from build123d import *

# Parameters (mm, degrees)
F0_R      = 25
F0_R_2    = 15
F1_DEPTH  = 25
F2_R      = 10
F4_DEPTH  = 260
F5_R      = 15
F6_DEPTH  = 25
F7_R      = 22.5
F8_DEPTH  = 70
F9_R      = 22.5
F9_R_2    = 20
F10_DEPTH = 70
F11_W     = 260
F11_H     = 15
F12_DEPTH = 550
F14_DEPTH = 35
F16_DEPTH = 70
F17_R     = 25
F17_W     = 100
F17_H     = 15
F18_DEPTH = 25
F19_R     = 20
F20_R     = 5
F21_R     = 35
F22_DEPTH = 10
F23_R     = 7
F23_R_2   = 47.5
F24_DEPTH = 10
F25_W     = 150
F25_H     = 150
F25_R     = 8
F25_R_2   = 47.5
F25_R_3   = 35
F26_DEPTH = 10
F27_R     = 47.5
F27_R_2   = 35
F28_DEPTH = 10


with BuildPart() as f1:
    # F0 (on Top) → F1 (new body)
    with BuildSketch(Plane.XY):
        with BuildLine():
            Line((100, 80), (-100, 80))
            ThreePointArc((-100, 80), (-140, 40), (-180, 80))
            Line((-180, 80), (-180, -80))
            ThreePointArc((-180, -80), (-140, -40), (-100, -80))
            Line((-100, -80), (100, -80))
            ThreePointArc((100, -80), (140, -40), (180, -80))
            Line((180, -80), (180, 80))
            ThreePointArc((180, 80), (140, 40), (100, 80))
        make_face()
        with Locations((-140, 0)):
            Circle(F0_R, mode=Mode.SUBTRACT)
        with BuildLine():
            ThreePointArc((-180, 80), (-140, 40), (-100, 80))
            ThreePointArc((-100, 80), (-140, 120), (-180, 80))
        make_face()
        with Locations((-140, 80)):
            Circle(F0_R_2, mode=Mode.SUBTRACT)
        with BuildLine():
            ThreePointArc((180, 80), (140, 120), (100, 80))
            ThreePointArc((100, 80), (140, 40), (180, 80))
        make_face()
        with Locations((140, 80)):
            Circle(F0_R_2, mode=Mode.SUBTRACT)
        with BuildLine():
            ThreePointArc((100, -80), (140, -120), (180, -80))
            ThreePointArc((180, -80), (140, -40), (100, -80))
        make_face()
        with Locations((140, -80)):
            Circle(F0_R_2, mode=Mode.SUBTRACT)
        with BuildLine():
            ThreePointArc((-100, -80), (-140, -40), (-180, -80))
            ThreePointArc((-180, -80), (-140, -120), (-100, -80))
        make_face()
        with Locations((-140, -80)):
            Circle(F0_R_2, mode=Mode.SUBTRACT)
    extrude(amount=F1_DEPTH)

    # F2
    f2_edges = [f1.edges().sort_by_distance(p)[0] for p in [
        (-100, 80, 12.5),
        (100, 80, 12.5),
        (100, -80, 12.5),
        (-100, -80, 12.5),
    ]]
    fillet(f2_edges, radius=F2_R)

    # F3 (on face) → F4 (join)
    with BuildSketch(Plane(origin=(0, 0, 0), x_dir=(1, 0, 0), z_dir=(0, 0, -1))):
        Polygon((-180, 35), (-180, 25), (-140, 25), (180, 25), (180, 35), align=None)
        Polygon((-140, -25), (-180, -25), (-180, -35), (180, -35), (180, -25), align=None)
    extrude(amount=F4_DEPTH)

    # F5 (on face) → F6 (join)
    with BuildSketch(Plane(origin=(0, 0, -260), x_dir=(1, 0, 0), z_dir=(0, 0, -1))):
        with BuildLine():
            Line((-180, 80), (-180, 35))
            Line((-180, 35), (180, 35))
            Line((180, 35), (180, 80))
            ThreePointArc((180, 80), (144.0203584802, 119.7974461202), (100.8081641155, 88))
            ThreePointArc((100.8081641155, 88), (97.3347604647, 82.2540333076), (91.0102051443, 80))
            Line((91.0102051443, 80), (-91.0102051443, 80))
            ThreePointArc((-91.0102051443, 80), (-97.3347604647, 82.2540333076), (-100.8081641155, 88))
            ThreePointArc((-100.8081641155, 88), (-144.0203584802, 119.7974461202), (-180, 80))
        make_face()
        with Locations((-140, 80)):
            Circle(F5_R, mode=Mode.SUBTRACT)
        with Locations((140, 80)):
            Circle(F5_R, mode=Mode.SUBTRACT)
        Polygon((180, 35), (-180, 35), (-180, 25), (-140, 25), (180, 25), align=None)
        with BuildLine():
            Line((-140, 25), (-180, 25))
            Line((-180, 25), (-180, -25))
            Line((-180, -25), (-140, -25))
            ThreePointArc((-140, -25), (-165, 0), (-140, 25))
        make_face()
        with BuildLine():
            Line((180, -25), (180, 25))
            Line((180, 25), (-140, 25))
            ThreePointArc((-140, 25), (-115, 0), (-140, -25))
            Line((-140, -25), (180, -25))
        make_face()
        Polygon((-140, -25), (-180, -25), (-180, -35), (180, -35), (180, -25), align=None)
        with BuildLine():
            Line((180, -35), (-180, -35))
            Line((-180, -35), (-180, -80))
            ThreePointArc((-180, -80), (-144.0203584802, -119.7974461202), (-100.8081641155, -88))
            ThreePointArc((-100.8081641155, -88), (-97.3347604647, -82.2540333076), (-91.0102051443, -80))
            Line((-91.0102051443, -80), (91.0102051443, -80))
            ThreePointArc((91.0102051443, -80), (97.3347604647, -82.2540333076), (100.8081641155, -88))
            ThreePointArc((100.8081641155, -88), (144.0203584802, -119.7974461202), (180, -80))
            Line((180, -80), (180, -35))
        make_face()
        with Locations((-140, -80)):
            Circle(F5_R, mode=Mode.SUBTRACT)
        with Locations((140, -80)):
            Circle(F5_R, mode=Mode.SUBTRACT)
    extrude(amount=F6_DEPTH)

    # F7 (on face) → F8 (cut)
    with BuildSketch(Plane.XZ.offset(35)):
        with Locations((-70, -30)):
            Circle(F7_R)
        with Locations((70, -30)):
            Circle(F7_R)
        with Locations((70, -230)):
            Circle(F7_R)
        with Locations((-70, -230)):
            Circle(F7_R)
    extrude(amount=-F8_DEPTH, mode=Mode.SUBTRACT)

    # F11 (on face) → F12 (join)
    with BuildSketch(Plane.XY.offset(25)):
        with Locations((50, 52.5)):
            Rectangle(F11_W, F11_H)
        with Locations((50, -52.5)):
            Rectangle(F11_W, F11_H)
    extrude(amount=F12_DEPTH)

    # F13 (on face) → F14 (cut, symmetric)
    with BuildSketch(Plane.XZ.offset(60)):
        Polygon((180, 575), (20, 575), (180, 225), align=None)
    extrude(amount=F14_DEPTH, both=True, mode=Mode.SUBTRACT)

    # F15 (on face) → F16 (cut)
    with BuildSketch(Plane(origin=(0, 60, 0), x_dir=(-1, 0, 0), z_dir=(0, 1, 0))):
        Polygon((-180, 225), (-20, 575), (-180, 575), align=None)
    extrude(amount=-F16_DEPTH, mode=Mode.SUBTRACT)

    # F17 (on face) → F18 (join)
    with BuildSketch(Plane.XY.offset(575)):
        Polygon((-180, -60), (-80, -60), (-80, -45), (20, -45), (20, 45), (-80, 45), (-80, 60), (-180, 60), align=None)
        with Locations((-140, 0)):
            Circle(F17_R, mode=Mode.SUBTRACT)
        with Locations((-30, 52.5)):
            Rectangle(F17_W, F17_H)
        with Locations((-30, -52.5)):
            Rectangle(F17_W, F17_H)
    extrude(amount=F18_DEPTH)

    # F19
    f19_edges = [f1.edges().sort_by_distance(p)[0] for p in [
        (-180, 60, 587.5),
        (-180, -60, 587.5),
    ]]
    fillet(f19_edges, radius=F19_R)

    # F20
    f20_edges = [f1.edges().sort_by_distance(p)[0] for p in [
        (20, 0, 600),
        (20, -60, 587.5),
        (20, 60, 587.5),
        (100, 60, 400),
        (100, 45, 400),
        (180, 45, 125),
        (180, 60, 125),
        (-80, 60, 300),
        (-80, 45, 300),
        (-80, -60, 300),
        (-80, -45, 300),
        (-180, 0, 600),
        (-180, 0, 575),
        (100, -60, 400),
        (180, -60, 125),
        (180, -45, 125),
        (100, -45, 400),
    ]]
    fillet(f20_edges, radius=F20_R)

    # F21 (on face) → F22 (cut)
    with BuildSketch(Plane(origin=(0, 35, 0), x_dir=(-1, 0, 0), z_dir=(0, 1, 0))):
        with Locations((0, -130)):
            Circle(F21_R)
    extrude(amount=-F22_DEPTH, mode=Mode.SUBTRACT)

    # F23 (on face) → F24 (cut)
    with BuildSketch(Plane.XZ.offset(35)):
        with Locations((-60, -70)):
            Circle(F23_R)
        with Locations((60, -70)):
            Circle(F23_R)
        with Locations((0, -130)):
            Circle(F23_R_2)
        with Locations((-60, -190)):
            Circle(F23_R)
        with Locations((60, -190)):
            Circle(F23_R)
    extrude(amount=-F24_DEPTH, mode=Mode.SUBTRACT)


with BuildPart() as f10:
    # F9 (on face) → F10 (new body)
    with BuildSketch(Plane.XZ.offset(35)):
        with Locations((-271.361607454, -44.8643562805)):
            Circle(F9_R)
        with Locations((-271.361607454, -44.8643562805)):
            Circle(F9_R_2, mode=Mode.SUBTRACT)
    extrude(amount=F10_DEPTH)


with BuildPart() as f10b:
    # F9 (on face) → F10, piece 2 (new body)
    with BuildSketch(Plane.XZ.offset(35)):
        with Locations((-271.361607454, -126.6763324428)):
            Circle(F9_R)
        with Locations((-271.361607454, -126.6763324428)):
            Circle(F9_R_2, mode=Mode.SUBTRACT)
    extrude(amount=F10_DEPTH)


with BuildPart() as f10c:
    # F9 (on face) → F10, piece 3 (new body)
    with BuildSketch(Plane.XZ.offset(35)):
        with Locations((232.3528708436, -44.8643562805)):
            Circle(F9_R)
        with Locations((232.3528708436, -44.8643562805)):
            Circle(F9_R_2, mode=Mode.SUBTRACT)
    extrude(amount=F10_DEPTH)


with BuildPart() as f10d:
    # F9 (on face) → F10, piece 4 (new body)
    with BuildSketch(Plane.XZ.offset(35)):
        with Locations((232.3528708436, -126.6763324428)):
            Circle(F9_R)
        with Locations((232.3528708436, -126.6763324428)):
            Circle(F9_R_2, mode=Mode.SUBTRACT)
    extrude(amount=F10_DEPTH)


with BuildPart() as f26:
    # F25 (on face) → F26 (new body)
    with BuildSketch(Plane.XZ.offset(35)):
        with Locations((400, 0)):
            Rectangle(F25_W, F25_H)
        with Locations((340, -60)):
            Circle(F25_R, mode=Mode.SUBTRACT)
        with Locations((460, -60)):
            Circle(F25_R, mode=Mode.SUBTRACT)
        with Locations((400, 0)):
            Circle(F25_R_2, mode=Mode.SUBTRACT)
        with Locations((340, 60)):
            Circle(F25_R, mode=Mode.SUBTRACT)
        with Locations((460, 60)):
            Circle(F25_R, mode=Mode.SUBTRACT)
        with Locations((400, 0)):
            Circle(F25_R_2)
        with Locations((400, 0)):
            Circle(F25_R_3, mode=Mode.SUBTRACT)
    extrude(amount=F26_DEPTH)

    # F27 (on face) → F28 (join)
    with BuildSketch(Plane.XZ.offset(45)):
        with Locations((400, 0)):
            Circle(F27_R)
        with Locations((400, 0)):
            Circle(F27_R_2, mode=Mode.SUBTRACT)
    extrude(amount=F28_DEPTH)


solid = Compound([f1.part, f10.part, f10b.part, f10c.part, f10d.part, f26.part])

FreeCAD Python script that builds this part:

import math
import FreeCAD as App
import Part
import Sketcher

V = App.Vector
Q = App.Units.Quantity


def edges_at(feature, points):
    """Names of the edges that pass closest to the given points."""
    edges = feature.Shape.Edges
    near = lambda p: min(range(len(edges)), key=lambda i: edges[i].distToShape(Part.Vertex(*p))[0])
    return sorted({f"Edge{near(p) + 1}" for p in points})


def add_polygon(sketch, points):
    """Adds a closed chain of lines whose ends are joined by coincident constraints."""
    first, n = sketch.GeometryCount, len(points)
    for a, b in zip(points, points[1:] + points[:1]):
        sketch.addGeometry(Part.LineSegment(App.Vector(*a, 0), App.Vector(*b, 0)), False)
    for i in range(n):
        sketch.addConstraint(Sketcher.Constraint("Coincident", first + i, 2, first + (i + 1) % n, 1))

doc = App.newDocument("Part")
body = doc.addObject("PartDesign::Body", "Body")

# Sketch on XY plane
sketch1 = body.newObject("Sketcher::SketchObject", "Sketch")
sketch1.AttachmentSupport = (doc.getObject("XY_Plane"), [""])
sketch1.MapMode = "FlatFace"
sketch1.addGeometry([
    Part.LineSegment(V(100, 80, 0), V(-100, 80, 0)),  # 0
    Part.ArcOfCircle(Part.Circle(V(-140, 80, 0), V(0, 0, 1), 40), math.radians(0), math.radians(180)),  # 1
    Part.LineSegment(V(-180, 80, 0), V(-180, -80, 0)),  # 2
    Part.ArcOfCircle(Part.Circle(V(-140, -80, 0), V(0, 0, 1), 40), math.radians(180), math.radians(360)),  # 3
    Part.LineSegment(V(-100, -80, 0), V(100, -80, 0)),  # 4
    Part.ArcOfCircle(Part.Circle(V(140, -80, 0), V(0, 0, 1), 40), math.radians(180), math.radians(360)),  # 5
    Part.LineSegment(V(180, -80, 0), V(180, 80, 0)),  # 6
    Part.ArcOfCircle(Part.Circle(V(140, 80, 0), V(0, 0, 1), 40), math.radians(0), math.radians(180)),  # 7
    Part.Circle(V(-140, -80, 0), V(0, 0, 1), 15),  # 8
    Part.Circle(V(140, -80, 0), V(0, 0, 1), 15),  # 9
    Part.Circle(V(-140, 0, 0), V(0, 0, 1), 25),  # 10
    Part.Circle(V(-140, 80, 0), V(0, 0, 1), 15),  # 11
    Part.Circle(V(140, 80, 0), V(0, 0, 1), 15),  # 12
], False)
sketch1.addConstraint([
    Sketcher.Constraint("Coincident", 0, 2, 1, 1),
    Sketcher.Constraint("Tangent", 1, 2, 2, 1),
    Sketcher.Constraint("Tangent", 2, 2, 3, 1),
    Sketcher.Constraint("Coincident", 3, 2, 4, 1),
    Sketcher.Constraint("Coincident", 4, 2, 5, 1),
    Sketcher.Constraint("Tangent", 5, 2, 6, 1),
    Sketcher.Constraint("Tangent", 6, 2, 7, 1),
    Sketcher.Constraint("Coincident", 7, 2, 0, 1),
    Sketcher.Constraint("Horizontal", 0),
    Sketcher.Constraint("Vertical", 2),
    Sketcher.Constraint("Horizontal", 4),
    Sketcher.Constraint("Vertical", 6),
    Sketcher.Constraint("Coincident", 8, 3, 3, 3),
    Sketcher.Constraint("Coincident", 9, 3, 5, 3),
    Sketcher.Constraint("Coincident", 11, 3, 1, 3),
    Sketcher.Constraint("Coincident", 12, 3, 7, 3),
    Sketcher.Constraint("Equal", 1, 3),
    Sketcher.Constraint("Equal", 3, 5),
    Sketcher.Constraint("Equal", 5, 7),
    Sketcher.Constraint("Equal", 8, 9),
    Sketcher.Constraint("Equal", 9, 11),
    Sketcher.Constraint("Equal", 11, 12),
    Sketcher.Constraint("Symmetric", 1, 3, 5, 3, -1, 1),
    Sketcher.Constraint("PointOnObject", 10, 3, -1),
    Sketcher.Constraint("Horizontal", 3, 3, 5, 3),
    Sketcher.Constraint("Horizontal", 1, 3, 7, 3),
    Sketcher.Constraint("Horizontal", 12, 3, 0, 2),
    Sketcher.Constraint("Horizontal", 2, 2, 3, 2),
    Sketcher.Constraint("Vertical", 8, 3, 10, 3),
    Sketcher.Constraint("Diameter", 8, Q("30 mm")),
    Sketcher.Constraint("Diameter", 10, Q("50 mm")),
    Sketcher.Constraint("Radius", 1, Q("40 mm")),
    Sketcher.Constraint("DistanceX", 0, 2, 0, 1, Q("200 mm")),
    Sketcher.Constraint("DistanceY", 2, 2, 2, 1, Q("160 mm")),
])
pad1 = body.newObject("PartDesign::Pad", "Pad")
pad1.Profile = sketch1
pad1.Length = 25
doc.recompute()

fillet = body.newObject("PartDesign::Fillet", "Fillet")
fillet.Base = (pad1, edges_at(pad1, [
    (-100, 80, 12.5),
    (100, 80, 12.5),
    (100, -80, 12.5),
    (-100, -80, 12.5),
]))
fillet.Radius = 10

# Sketch on XY plane
sketch2 = body.newObject("Sketcher::SketchObject", "Sketch001")
sketch2.AttachmentSupport = (doc.getObject("XY_Plane"), [""])
sketch2.MapMode = "FlatFace"
add_polygon(sketch2, [(-180, -35), (-180, -25), (180, -25), (180, -35)])  # lines 0-3
add_polygon(sketch2, [(-180, 25), (-180, 35), (180, 35), (180, 25)])  # lines 4-7
sketch2.addConstraint([
    Sketcher.Constraint("Vertical", 0),
    Sketcher.Constraint("Horizontal", 1),
    Sketcher.Constraint("Vertical", 2),
    Sketcher.Constraint("Horizontal", 3),
    Sketcher.Constraint("Vertical", 4),
    Sketcher.Constraint("Horizontal", 5),
    Sketcher.Constraint("Vertical", 6),
    Sketcher.Constraint("Horizontal", 7),
    Sketcher.Constraint("Symmetric", 2, 2, 4, 2, -1, 1),
    Sketcher.Constraint("Symmetric", 0, 2, 6, 2, -1, 1),
    Sketcher.Constraint("Vertical", 3, 2, 4, 2),
    Sketcher.Constraint("DistanceX", 1, 1, 1, 2, Q("360 mm")),
    Sketcher.Constraint("DistanceY", 0, 1, 0, 2, Q("10 mm")),
    Sketcher.Constraint("DistanceY", 0, 2, -1, 1, Q("25 mm")),
])
pad2 = body.newObject("PartDesign::Pad", "Pad001")
pad2.Profile = sketch2
pad2.Length = 260
pad2.Reversed = True

# Sketch on XY plane
sketch3 = body.newObject("Sketcher::SketchObject", "Sketch002")
sketch3.AttachmentSupport = (doc.getObject("XY_Plane"), [""])
sketch3.MapMode = "FlatFace"
sketch3.AttachmentOffset = App.Placement(V(0, 0, -260), App.Rotation())
sketch3.addGeometry([
    Part.LineSegment(V(-180, -80, 0), V(-180, 80, 0)),  # 0
    Part.ArcOfCircle(Part.Circle(V(-140, 80, 0), V(0, 0, 1), 40), math.radians(12), math.radians(180)),  # 1
    Part.ArcOfCircle(Part.Circle(V(-91, 90, 0), V(0, 0, 1), 10), math.radians(-168), math.radians(-90)),  # 2
    Part.LineSegment(V(-91, 80, 0), V(91, 80, 0)),  # 3
    Part.ArcOfCircle(Part.Circle(V(91, 90, 0), V(0, 0, 1), 10), math.radians(-90), math.radians(-12)),  # 4
    Part.ArcOfCircle(Part.Circle(V(140, 80, 0), V(0, 0, 1), 40), math.radians(0), math.radians(168)),  # 5
    Part.LineSegment(V(180, 80, 0), V(180, -80, 0)),  # 6
    Part.ArcOfCircle(Part.Circle(V(140, -80, 0), V(0, 0, 1), 40), math.radians(-168), math.radians(0)),  # 7
    Part.ArcOfCircle(Part.Circle(V(91, -90, 0), V(0, 0, 1), 10), math.radians(12), math.radians(90)),  # 8
    Part.LineSegment(V(91, -80, 0), V(-91, -80, 0)),  # 9
    Part.ArcOfCircle(Part.Circle(V(-91, -90, 0), V(0, 0, 1), 10), math.radians(90), math.radians(168)),  # 10
    Part.ArcOfCircle(Part.Circle(V(-140, -80, 0), V(0, 0, 1), 40), math.radians(180), math.radians(348)),  # 11
    Part.Circle(V(-140, 80, 0), V(0, 0, 1), 15),  # 12
    Part.Circle(V(140, 80, 0), V(0, 0, 1), 15),  # 13
    Part.Circle(V(-140, 0, 0), V(0, 0, 1), 25),  # 14
    Part.Circle(V(-140, -80, 0), V(0, 0, 1), 15),  # 15
    Part.Circle(V(140, -80, 0), V(0, 0, 1), 15),  # 16
], False)
sketch3.addConstraint([
    Sketcher.Constraint("Tangent", 0, 2, 1, 2),
    Sketcher.Constraint("Tangent", 1, 1, 2, 1),
    Sketcher.Constraint("Tangent", 2, 2, 3, 1),
    Sketcher.Constraint("Tangent", 3, 2, 4, 1),
    Sketcher.Constraint("Tangent", 4, 2, 5, 2),
    Sketcher.Constraint("Tangent", 5, 1, 6, 1),
    Sketcher.Constraint("Tangent", 6, 2, 7, 2),
    Sketcher.Constraint("Tangent", 7, 1, 8, 1),
    Sketcher.Constraint("Tangent", 8, 2, 9, 1),
    Sketcher.Constraint("Tangent", 9, 2, 10, 1),
    Sketcher.Constraint("Tangent", 10, 2, 11, 2),
    Sketcher.Constraint("Tangent", 11, 1, 0, 1),
    Sketcher.Constraint("Vertical", 0),
    Sketcher.Constraint("Horizontal", 3),
    Sketcher.Constraint("Vertical", 6),
    Sketcher.Constraint("Horizontal", 9),
    Sketcher.Constraint("Coincident", 12, 3, 1, 3),
    Sketcher.Constraint("Coincident", 13, 3, 5, 3),
    Sketcher.Constraint("Coincident", 15, 3, 11, 3),
    Sketcher.Constraint("Coincident", 16, 3, 7, 3),
    Sketcher.Constraint("Equal", 2, 4),
    Sketcher.Constraint("Equal", 1, 5),
    Sketcher.Constraint("Equal", 5, 7),
    Sketcher.Constraint("Equal", 4, 8),
    Sketcher.Constraint("Equal", 8, 10),
    Sketcher.Constraint("Equal", 7, 11),
    Sketcher.Constraint("Equal", 12, 13),
    Sketcher.Constraint("Equal", 13, 15),
    Sketcher.Constraint("Equal", 15, 16),
    Sketcher.Constraint("Symmetric", 1, 3, 7, 3, -1, 1),
    Sketcher.Constraint("Symmetric", 4, 3, 10, 3, -1, 1),
    Sketcher.Constraint("PointOnObject", 14, 3, -1),
    Sketcher.Constraint("Horizontal", 1, 3, 5, 3),
    Sketcher.Constraint("Horizontal", 0, 2, 2, 2),
    Sketcher.Constraint("Vertical", 12, 3, 14, 3),
    Sketcher.Constraint("Diameter", 12, Q("30 mm")),
    Sketcher.Constraint("Diameter", 14, Q("50 mm")),
    Sketcher.Constraint("Radius", 1, Q("40 mm")),
    Sketcher.Constraint("Radius", 2, Q("10 mm")),
    Sketcher.Constraint("DistanceY", 0, 1, 0, 2, Q("160 mm")),
    Sketcher.Constraint("DistanceX", 1, 3, -1, 1, Q("140 mm")),
])
pad3 = body.newObject("PartDesign::Pad", "Pad002")
pad3.Profile = sketch3
pad3.Length = 25
pad3.Reversed = True

# Sketch on XZ plane
sketch4 = body.newObject("Sketcher::SketchObject", "Sketch003")
sketch4.AttachmentSupport = (doc.getObject("XZ_Plane"), [""])
sketch4.MapMode = "FlatFace"
sketch4.AttachmentOffset = App.Placement(V(0, 0, 35), App.Rotation())
sketch4.addGeometry([
    Part.Circle(V(-70, -30, 0), V(0, 0, 1), 22),
    Part.Circle(V(70, -30, 0), V(0, 0, 1), 22),
    Part.Circle(V(70, -230, 0), V(0, 0, 1), 22),
    Part.Circle(V(-70, -230, 0), V(0, 0, 1), 22),
], False)
sketch4.addConstraint([
    Sketcher.Constraint("Equal", 0, 1),
    Sketcher.Constraint("Equal", 1, 2),
    Sketcher.Constraint("Equal", 2, 3),
    Sketcher.Constraint("Symmetric", 0, 3, 1, 3, -2),
    Sketcher.Constraint("Symmetric", 2, 3, 3, 3, -2),
    Sketcher.Constraint("Vertical", 1, 3, 2, 3),
    Sketcher.Constraint("Diameter", 0, Q("45 mm")),
    Sketcher.Constraint("DistanceX", 0, 3, -1, 1, Q("70 mm")),
    Sketcher.Constraint("DistanceY", 0, 3, -1, 1, Q("30 mm")),
    Sketcher.Constraint("DistanceY", 2, 3, -1, 1, Q("230 mm")),
])
pocket1 = body.newObject("PartDesign::Pocket", "Pocket")
pocket1.Profile = sketch4
pocket1.Length = 70

# Sketch on XY plane
sketch5 = body.newObject("Sketcher::SketchObject", "Sketch004")
sketch5.AttachmentSupport = (doc.getObject("XY_Plane"), [""])
sketch5.MapMode = "FlatFace"
sketch5.AttachmentOffset = App.Placement(V(0, 0, 25), App.Rotation())
add_polygon(sketch5, [(-80, 60), (-80, 45), (180, 45), (180, 60)])  # lines 0-3
add_polygon(sketch5, [(-80, -45), (-80, -60), (180, -60), (180, -45)])  # lines 4-7
sketch5.addConstraint([
    Sketcher.Constraint("Vertical", 0),
    Sketcher.Constraint("Horizontal", 1),
    Sketcher.Constraint("Vertical", 2),
    Sketcher.Constraint("Horizontal", 3),
    Sketcher.Constraint("Vertical", 4),
    Sketcher.Constraint("Horizontal", 5),
    Sketcher.Constraint("Vertical", 6),
    Sketcher.Constraint("Horizontal", 7),
    Sketcher.Constraint("Symmetric", 3, 2, 4, 2, -1),
    Sketcher.Constraint("Symmetric", 1, 2, 6, 2, -1),
    Sketcher.Constraint("DistanceX", 1, 1, 1, 2, Q("260 mm")),
    Sketcher.Constraint("DistanceY", 0, 2, 0, 1, Q("15 mm")),
    Sketcher.Constraint("DistanceX", 0, 2, -1, 1, Q("80 mm")),
    Sketcher.Constraint("DistanceY", -1, 1, 0, 2, Q("45 mm")),
])
pad4 = body.newObject("PartDesign::Pad", "Pad003")
pad4.Profile = sketch5
pad4.Length = 550

# Sketch on XZ plane
sketch6 = body.newObject("Sketcher::SketchObject", "Sketch005")
sketch6.AttachmentSupport = (doc.getObject("XZ_Plane"), [""])
sketch6.MapMode = "FlatFace"
sketch6.AttachmentOffset = App.Placement(V(0, 0, 60), App.Rotation())
add_polygon(sketch6, [(180, 575), (20, 575), (180, 225)])  # lines 0-2
sketch6.addConstraint([
    Sketcher.Constraint("Horizontal", 0),
    Sketcher.Constraint("Vertical", 2),
    Sketcher.Constraint("DistanceX", 0, 2, 0, 1, Q("160 mm")),
    Sketcher.Constraint("DistanceY", 2, 1, 2, 2, Q("350 mm")),
    Sketcher.Constraint("DistanceX", -1, 1, 0, 2, Q("20 mm")),
    Sketcher.Constraint("DistanceY", -1, 1, 0, 2, Q("575 mm")),
])
pocket2 = body.newObject("PartDesign::Pocket", "Pocket001")
pocket2.Profile = sketch6
pocket2.Length = 70
pocket2.Midplane = True

# Sketch on XZ plane
sketch7 = body.newObject("Sketcher::SketchObject", "Sketch006")
sketch7.AttachmentSupport = (doc.getObject("XZ_Plane"), [""])
sketch7.MapMode = "FlatFace"
sketch7.AttachmentOffset = App.Placement(V(0, 0, -60), App.Rotation())
add_polygon(sketch7, [(180, 225), (20, 575), (180, 575)])  # lines 0-2
sketch7.addConstraint([
    Sketcher.Constraint("Horizontal", 1),
    Sketcher.Constraint("Vertical", 2),
    Sketcher.Constraint("DistanceX", 1, 1, 1, 2, Q("160 mm")),
    Sketcher.Constraint("DistanceY", 2, 2, 2, 1, Q("350 mm")),
    Sketcher.Constraint("DistanceX", -1, 1, 0, 2, Q("20 mm")),
    Sketcher.Constraint("DistanceY", -1, 1, 0, 2, Q("575 mm")),
])
pocket3 = body.newObject("PartDesign::Pocket", "Pocket002")
pocket3.Profile = sketch7
pocket3.Length = 70
pocket3.Reversed = True

# Sketch on XY plane
sketch8 = body.newObject("Sketcher::SketchObject", "Sketch007")
sketch8.AttachmentSupport = (doc.getObject("XY_Plane"), [""])
sketch8.MapMode = "FlatFace"
sketch8.AttachmentOffset = App.Placement(V(0, 0, 575), App.Rotation())
add_polygon(sketch8, [(-180, -60), (20, -60), (20, 60), (-180, 60)])  # lines 0-3
sketch8.addGeometry(Part.Circle(V(-140, 0, 0), V(0, 0, 1), 25), False)  # 4
sketch8.addConstraint([
    Sketcher.Constraint("Horizontal", 0),
    Sketcher.Constraint("Vertical", 1),
    Sketcher.Constraint("Horizontal", 2),
    Sketcher.Constraint("Vertical", 3),
    Sketcher.Constraint("PointOnObject", 4, 3, -1),
    Sketcher.Constraint("Diameter", 4, Q("50 mm")),
    Sketcher.Constraint("DistanceX", 0, 1, 0, 2, Q("200 mm")),
    Sketcher.Constraint("DistanceY", 1, 1, 1, 2, Q("120 mm")),
    Sketcher.Constraint("DistanceX", 4, 3, -1, 1, Q("140 mm")),
    Sketcher.Constraint("DistanceX", -1, 1, 0, 2, Q("20 mm")),
    Sketcher.Constraint("DistanceY", 0, 2, -1, 1, Q("60 mm")),
])
pad5 = body.newObject("PartDesign::Pad", "Pad004")
pad5.Profile = sketch8
pad5.Length = 25
doc.recompute()

fillet2 = body.newObject("PartDesign::Fillet", "Fillet001")
fillet2.Base = (pad5, edges_at(pad5, [(-180, 60, 587.5), (-180, -60, 587.5)]))
fillet2.Radius = 20
doc.recompute()

fillet3 = body.newObject("PartDesign::Fillet", "Fillet002")
fillet3.Base = (fillet2, edges_at(fillet2, [
    (20, 0, 600),
    (20, -60, 587.5),
    (20, 60, 587.5),
    (100, 60, 400),
    (100, 45, 400),
    (180, 45, 125),
    (180, 60, 125),
    (-80, 60, 300),
    (-80, 45, 300),
    (-80, -60, 300),
    (-80, -45, 300),
    (-180, 0, 600),
    (-180, 0, 575),
    (100, -60, 400),
    (180, -60, 125),
    (180, -45, 125),
    (100, -45, 400),
]))
fillet3.Radius = 5

# Sketch on XZ plane
sketch9 = body.newObject("Sketcher::SketchObject", "Sketch008")
sketch9.AttachmentSupport = (doc.getObject("XZ_Plane"), [""])
sketch9.MapMode = "FlatFace"
sketch9.AttachmentOffset = App.Placement(V(0, 0, -35), App.Rotation())
sketch9.addGeometry(Part.Circle(V(0, -130, 0), V(0, 0, 1), 35), False)
sketch9.addConstraint([
    Sketcher.Constraint("PointOnObject", 0, 3, -2),
    Sketcher.Constraint("Diameter", 0, Q("70 mm")),
    Sketcher.Constraint("DistanceY", 0, 3, -1, 1, Q("130 mm")),
])
pocket4 = body.newObject("PartDesign::Pocket", "Pocket003")
pocket4.Profile = sketch9
pocket4.Length = 10
pocket4.Reversed = True

# Sketch on XZ plane
sketch10 = body.newObject("Sketcher::SketchObject", "Sketch009")
sketch10.AttachmentSupport = (doc.getObject("XZ_Plane"), [""])
sketch10.MapMode = "FlatFace"
sketch10.AttachmentOffset = App.Placement(V(0, 0, 35), App.Rotation())
sketch10.addGeometry([
    Part.Circle(V(-60, -70, 0), V(0, 0, 1), 7),  # 0
    Part.Circle(V(60, -70, 0), V(0, 0, 1), 7),  # 1
    Part.Circle(V(0, -130, 0), V(0, 0, 1), 48),  # 2
    Part.Circle(V(-60, -190, 0), V(0, 0, 1), 7),  # 3
    Part.Circle(V(60, -190, 0), V(0, 0, 1), 7),  # 4
], False)
sketch10.addConstraint([
    Sketcher.Constraint("Equal", 0, 1),
    Sketcher.Constraint("Equal", 1, 3),
    Sketcher.Constraint("Equal", 3, 4),
    Sketcher.Constraint("Symmetric", 0, 3, 1, 3, -2),
    Sketcher.Constraint("Symmetric", 3, 3, 4, 3, -2),
    Sketcher.Constraint("PointOnObject", 2, 3, -2),
    Sketcher.Constraint("Vertical", 0, 3, 3, 3),
    Sketcher.Constraint("Diameter", 0, Q("14 mm")),
    Sketcher.Constraint("Diameter", 2, Q("95 mm")),
    Sketcher.Constraint("DistanceX", 0, 3, -1, 1, Q("60 mm")),
    Sketcher.Constraint("DistanceY", 0, 3, -1, 1, Q("70 mm")),
    Sketcher.Constraint("DistanceY", 2, 3, -1, 1, Q("130 mm")),
    Sketcher.Constraint("DistanceY", 3, 3, -1, 1, Q("190 mm")),
])
pocket5 = body.newObject("PartDesign::Pocket", "Pocket004")
pocket5.Profile = sketch10
pocket5.Length = 10
body2 = doc.addObject("PartDesign::Body", "Body001")

# Sketch on XZ plane
sketch11 = body2.newObject("Sketcher::SketchObject", "Sketch010")
sketch11.AttachmentSupport = (doc.getObject("XZ_Plane001"), [""])
sketch11.MapMode = "FlatFace"
sketch11.AttachmentOffset = App.Placement(V(0, 0, 35), App.Rotation())
sketch11.addGeometry([
    Part.Circle(V(-271, -45, 0), V(0, 0, 1), 22),
    Part.Circle(V(-271, -45, 0), V(0, 0, 1), 20),
], False)
sketch11.addConstraint([
    Sketcher.Constraint("Coincident", 1, 3, 0, 3),
    Sketcher.Constraint("Diameter", 0, Q("45 mm")),
    Sketcher.Constraint("Diameter", 1, Q("40 mm")),
    Sketcher.Constraint("DistanceX", 0, 3, -1, 1, Q("271.361607 mm")),
    Sketcher.Constraint("DistanceY", 0, 3, -1, 1, Q("44.864356 mm")),
])
pad6 = body2.newObject("PartDesign::Pad", "Pad005")
pad6.Profile = sketch11
pad6.Length = 70
body3 = doc.addObject("PartDesign::Body", "Body002")

# Sketch on XZ plane
sketch12 = body3.newObject("Sketcher::SketchObject", "Sketch011")
sketch12.AttachmentSupport = (doc.getObject("XZ_Plane002"), [""])
sketch12.MapMode = "FlatFace"
sketch12.AttachmentOffset = App.Placement(V(0, 0, 35), App.Rotation())
sketch12.addGeometry([
    Part.Circle(V(-271, -127, 0), V(0, 0, 1), 22),
    Part.Circle(V(-271, -127, 0), V(0, 0, 1), 20),
], False)
sketch12.addConstraint([
    Sketcher.Constraint("Coincident", 1, 3, 0, 3),
    Sketcher.Constraint("Diameter", 0, Q("45 mm")),
    Sketcher.Constraint("Diameter", 1, Q("40 mm")),
    Sketcher.Constraint("DistanceX", 0, 3, -1, 1, Q("271.361607 mm")),
    Sketcher.Constraint("DistanceY", 0, 3, -1, 1, Q("126.676332 mm")),
])
pad7 = body3.newObject("PartDesign::Pad", "Pad006")
pad7.Profile = sketch12
pad7.Length = 70
body4 = doc.addObject("PartDesign::Body", "Body003")

# Sketch on XZ plane
sketch13 = body4.newObject("Sketcher::SketchObject", "Sketch012")
sketch13.AttachmentSupport = (doc.getObject("XZ_Plane003"), [""])
sketch13.MapMode = "FlatFace"
sketch13.AttachmentOffset = App.Placement(V(0, 0, 35), App.Rotation())
sketch13.addGeometry([
    Part.Circle(V(232, -45, 0), V(0, 0, 1), 22),
    Part.Circle(V(232, -45, 0), V(0, 0, 1), 20),
], False)
sketch13.addConstraint([
    Sketcher.Constraint("Coincident", 1, 3, 0, 3),
    Sketcher.Constraint("Diameter", 0, Q("45 mm")),
    Sketcher.Constraint("Diameter", 1, Q("40 mm")),
    Sketcher.Constraint("DistanceX", -1, 1, 0, 3, Q("232.352871 mm")),
    Sketcher.Constraint("DistanceY", 0, 3, -1, 1, Q("44.864356 mm")),
])
pad8 = body4.newObject("PartDesign::Pad", "Pad007")
pad8.Profile = sketch13
pad8.Length = 70
body5 = doc.addObject("PartDesign::Body", "Body004")

# Sketch on XZ plane
sketch14 = body5.newObject("Sketcher::SketchObject", "Sketch013")
sketch14.AttachmentSupport = (doc.getObject("XZ_Plane004"), [""])
sketch14.MapMode = "FlatFace"
sketch14.AttachmentOffset = App.Placement(V(0, 0, 35), App.Rotation())
sketch14.addGeometry([
    Part.Circle(V(232, -127, 0), V(0, 0, 1), 22),
    Part.Circle(V(232, -127, 0), V(0, 0, 1), 20),
], False)
sketch14.addConstraint([
    Sketcher.Constraint("Coincident", 1, 3, 0, 3),
    Sketcher.Constraint("Diameter", 0, Q("45 mm")),
    Sketcher.Constraint("Diameter", 1, Q("40 mm")),
    Sketcher.Constraint("DistanceX", -1, 1, 0, 3, Q("232.352871 mm")),
    Sketcher.Constraint("DistanceY", 0, 3, -1, 1, Q("126.676332 mm")),
])
pad9 = body5.newObject("PartDesign::Pad", "Pad008")
pad9.Profile = sketch14
pad9.Length = 70
body6 = doc.addObject("PartDesign::Body", "Body005")

# Sketch on XZ plane
sketch15 = body6.newObject("Sketcher::SketchObject", "Sketch014")
sketch15.AttachmentSupport = (doc.getObject("XZ_Plane005"), [""])
sketch15.MapMode = "FlatFace"
sketch15.AttachmentOffset = App.Placement(V(0, 0, 35), App.Rotation())
add_polygon(sketch15, [(325, 75), (325, -75), (475, -75), (475, 75)])  # lines 0-3
sketch15.addGeometry(Part.Circle(V(340, -60, 0), V(0, 0, 1), 8), False)  # 4
sketch15.addGeometry(Part.Circle(V(460, -60, 0), V(0, 0, 1), 8), False)  # 5
sketch15.addGeometry(Part.Circle(V(340, 60, 0), V(0, 0, 1), 8), False)  # 6
sketch15.addGeometry(Part.Circle(V(400, 0, 0), V(0, 0, 1), 35), False)  # 7
sketch15.addGeometry(Part.Circle(V(460, 60, 0), V(0, 0, 1), 8), False)  # 8
sketch15.addConstraint([
    Sketcher.Constraint("Vertical", 0),
    Sketcher.Constraint("Horizontal", 1),
    Sketcher.Constraint("Vertical", 2),
    Sketcher.Constraint("Horizontal", 3),
    Sketcher.Constraint("Equal", 4, 5),
    Sketcher.Constraint("Equal", 5, 6),
    Sketcher.Constraint("Equal", 6, 8),
    Sketcher.Constraint("Symmetric", 4, 3, 6, 3, -1),
    Sketcher.Constraint("Symmetric", 5, 3, 8, 3, -1),
    Sketcher.Constraint("PointOnObject", 7, 3, -1),
    Sketcher.Constraint("Horizontal", 4, 3, 5, 3),
    Sketcher.Constraint("Equal", 3, 0),
    Sketcher.Constraint("Diameter", 4, Q("16 mm")),
    Sketcher.Constraint("Diameter", 7, Q("70 mm")),
    Sketcher.Constraint("DistanceX", 1, 1, 1, 2, Q("150 mm")),
    Sketcher.Constraint("DistanceX", -1, 1, 4, 3, Q("340 mm")),
    Sketcher.Constraint("DistanceY", 4, 3, -1, 1, Q("60 mm")),
    Sketcher.Constraint("DistanceX", -1, 1, 5, 3, Q("460 mm")),
    Sketcher.Constraint("DistanceX", -1, 1, 7, 3, Q("400 mm")),
    Sketcher.Constraint("DistanceX", -1, 1, 0, 2, Q("325 mm")),
    Sketcher.Constraint("DistanceY", 0, 2, -1, 1, Q("75 mm")),
])
pad10 = body6.newObject("PartDesign::Pad", "Pad009")
pad10.Profile = sketch15
pad10.Length = 10

# Sketch on XZ plane
sketch16 = body6.newObject("Sketcher::SketchObject", "Sketch015")
sketch16.AttachmentSupport = (doc.getObject("XZ_Plane005"), [""])
sketch16.MapMode = "FlatFace"
sketch16.AttachmentOffset = App.Placement(V(0, 0, 45), App.Rotation())
sketch16.addGeometry([
    Part.Circle(V(400, 0, 0), V(0, 0, 1), 48),
    Part.Circle(V(400, 0, 0), V(0, 0, 1), 35),
], False)
sketch16.addConstraint([
    Sketcher.Constraint("Coincident", 1, 3, 0, 3),
    Sketcher.Constraint("PointOnObject", 0, 3, -1),
    Sketcher.Constraint("Diameter", 0, Q("95 mm")),
    Sketcher.Constraint("Diameter", 1, Q("70 mm")),
    Sketcher.Constraint("DistanceX", -1, 1, 0, 3, Q("400 mm")),
])
pad11 = body6.newObject("PartDesign::Pad", "Pad010")
pad11.Profile = sketch16
pad11.Length = 10

doc.recompute()
